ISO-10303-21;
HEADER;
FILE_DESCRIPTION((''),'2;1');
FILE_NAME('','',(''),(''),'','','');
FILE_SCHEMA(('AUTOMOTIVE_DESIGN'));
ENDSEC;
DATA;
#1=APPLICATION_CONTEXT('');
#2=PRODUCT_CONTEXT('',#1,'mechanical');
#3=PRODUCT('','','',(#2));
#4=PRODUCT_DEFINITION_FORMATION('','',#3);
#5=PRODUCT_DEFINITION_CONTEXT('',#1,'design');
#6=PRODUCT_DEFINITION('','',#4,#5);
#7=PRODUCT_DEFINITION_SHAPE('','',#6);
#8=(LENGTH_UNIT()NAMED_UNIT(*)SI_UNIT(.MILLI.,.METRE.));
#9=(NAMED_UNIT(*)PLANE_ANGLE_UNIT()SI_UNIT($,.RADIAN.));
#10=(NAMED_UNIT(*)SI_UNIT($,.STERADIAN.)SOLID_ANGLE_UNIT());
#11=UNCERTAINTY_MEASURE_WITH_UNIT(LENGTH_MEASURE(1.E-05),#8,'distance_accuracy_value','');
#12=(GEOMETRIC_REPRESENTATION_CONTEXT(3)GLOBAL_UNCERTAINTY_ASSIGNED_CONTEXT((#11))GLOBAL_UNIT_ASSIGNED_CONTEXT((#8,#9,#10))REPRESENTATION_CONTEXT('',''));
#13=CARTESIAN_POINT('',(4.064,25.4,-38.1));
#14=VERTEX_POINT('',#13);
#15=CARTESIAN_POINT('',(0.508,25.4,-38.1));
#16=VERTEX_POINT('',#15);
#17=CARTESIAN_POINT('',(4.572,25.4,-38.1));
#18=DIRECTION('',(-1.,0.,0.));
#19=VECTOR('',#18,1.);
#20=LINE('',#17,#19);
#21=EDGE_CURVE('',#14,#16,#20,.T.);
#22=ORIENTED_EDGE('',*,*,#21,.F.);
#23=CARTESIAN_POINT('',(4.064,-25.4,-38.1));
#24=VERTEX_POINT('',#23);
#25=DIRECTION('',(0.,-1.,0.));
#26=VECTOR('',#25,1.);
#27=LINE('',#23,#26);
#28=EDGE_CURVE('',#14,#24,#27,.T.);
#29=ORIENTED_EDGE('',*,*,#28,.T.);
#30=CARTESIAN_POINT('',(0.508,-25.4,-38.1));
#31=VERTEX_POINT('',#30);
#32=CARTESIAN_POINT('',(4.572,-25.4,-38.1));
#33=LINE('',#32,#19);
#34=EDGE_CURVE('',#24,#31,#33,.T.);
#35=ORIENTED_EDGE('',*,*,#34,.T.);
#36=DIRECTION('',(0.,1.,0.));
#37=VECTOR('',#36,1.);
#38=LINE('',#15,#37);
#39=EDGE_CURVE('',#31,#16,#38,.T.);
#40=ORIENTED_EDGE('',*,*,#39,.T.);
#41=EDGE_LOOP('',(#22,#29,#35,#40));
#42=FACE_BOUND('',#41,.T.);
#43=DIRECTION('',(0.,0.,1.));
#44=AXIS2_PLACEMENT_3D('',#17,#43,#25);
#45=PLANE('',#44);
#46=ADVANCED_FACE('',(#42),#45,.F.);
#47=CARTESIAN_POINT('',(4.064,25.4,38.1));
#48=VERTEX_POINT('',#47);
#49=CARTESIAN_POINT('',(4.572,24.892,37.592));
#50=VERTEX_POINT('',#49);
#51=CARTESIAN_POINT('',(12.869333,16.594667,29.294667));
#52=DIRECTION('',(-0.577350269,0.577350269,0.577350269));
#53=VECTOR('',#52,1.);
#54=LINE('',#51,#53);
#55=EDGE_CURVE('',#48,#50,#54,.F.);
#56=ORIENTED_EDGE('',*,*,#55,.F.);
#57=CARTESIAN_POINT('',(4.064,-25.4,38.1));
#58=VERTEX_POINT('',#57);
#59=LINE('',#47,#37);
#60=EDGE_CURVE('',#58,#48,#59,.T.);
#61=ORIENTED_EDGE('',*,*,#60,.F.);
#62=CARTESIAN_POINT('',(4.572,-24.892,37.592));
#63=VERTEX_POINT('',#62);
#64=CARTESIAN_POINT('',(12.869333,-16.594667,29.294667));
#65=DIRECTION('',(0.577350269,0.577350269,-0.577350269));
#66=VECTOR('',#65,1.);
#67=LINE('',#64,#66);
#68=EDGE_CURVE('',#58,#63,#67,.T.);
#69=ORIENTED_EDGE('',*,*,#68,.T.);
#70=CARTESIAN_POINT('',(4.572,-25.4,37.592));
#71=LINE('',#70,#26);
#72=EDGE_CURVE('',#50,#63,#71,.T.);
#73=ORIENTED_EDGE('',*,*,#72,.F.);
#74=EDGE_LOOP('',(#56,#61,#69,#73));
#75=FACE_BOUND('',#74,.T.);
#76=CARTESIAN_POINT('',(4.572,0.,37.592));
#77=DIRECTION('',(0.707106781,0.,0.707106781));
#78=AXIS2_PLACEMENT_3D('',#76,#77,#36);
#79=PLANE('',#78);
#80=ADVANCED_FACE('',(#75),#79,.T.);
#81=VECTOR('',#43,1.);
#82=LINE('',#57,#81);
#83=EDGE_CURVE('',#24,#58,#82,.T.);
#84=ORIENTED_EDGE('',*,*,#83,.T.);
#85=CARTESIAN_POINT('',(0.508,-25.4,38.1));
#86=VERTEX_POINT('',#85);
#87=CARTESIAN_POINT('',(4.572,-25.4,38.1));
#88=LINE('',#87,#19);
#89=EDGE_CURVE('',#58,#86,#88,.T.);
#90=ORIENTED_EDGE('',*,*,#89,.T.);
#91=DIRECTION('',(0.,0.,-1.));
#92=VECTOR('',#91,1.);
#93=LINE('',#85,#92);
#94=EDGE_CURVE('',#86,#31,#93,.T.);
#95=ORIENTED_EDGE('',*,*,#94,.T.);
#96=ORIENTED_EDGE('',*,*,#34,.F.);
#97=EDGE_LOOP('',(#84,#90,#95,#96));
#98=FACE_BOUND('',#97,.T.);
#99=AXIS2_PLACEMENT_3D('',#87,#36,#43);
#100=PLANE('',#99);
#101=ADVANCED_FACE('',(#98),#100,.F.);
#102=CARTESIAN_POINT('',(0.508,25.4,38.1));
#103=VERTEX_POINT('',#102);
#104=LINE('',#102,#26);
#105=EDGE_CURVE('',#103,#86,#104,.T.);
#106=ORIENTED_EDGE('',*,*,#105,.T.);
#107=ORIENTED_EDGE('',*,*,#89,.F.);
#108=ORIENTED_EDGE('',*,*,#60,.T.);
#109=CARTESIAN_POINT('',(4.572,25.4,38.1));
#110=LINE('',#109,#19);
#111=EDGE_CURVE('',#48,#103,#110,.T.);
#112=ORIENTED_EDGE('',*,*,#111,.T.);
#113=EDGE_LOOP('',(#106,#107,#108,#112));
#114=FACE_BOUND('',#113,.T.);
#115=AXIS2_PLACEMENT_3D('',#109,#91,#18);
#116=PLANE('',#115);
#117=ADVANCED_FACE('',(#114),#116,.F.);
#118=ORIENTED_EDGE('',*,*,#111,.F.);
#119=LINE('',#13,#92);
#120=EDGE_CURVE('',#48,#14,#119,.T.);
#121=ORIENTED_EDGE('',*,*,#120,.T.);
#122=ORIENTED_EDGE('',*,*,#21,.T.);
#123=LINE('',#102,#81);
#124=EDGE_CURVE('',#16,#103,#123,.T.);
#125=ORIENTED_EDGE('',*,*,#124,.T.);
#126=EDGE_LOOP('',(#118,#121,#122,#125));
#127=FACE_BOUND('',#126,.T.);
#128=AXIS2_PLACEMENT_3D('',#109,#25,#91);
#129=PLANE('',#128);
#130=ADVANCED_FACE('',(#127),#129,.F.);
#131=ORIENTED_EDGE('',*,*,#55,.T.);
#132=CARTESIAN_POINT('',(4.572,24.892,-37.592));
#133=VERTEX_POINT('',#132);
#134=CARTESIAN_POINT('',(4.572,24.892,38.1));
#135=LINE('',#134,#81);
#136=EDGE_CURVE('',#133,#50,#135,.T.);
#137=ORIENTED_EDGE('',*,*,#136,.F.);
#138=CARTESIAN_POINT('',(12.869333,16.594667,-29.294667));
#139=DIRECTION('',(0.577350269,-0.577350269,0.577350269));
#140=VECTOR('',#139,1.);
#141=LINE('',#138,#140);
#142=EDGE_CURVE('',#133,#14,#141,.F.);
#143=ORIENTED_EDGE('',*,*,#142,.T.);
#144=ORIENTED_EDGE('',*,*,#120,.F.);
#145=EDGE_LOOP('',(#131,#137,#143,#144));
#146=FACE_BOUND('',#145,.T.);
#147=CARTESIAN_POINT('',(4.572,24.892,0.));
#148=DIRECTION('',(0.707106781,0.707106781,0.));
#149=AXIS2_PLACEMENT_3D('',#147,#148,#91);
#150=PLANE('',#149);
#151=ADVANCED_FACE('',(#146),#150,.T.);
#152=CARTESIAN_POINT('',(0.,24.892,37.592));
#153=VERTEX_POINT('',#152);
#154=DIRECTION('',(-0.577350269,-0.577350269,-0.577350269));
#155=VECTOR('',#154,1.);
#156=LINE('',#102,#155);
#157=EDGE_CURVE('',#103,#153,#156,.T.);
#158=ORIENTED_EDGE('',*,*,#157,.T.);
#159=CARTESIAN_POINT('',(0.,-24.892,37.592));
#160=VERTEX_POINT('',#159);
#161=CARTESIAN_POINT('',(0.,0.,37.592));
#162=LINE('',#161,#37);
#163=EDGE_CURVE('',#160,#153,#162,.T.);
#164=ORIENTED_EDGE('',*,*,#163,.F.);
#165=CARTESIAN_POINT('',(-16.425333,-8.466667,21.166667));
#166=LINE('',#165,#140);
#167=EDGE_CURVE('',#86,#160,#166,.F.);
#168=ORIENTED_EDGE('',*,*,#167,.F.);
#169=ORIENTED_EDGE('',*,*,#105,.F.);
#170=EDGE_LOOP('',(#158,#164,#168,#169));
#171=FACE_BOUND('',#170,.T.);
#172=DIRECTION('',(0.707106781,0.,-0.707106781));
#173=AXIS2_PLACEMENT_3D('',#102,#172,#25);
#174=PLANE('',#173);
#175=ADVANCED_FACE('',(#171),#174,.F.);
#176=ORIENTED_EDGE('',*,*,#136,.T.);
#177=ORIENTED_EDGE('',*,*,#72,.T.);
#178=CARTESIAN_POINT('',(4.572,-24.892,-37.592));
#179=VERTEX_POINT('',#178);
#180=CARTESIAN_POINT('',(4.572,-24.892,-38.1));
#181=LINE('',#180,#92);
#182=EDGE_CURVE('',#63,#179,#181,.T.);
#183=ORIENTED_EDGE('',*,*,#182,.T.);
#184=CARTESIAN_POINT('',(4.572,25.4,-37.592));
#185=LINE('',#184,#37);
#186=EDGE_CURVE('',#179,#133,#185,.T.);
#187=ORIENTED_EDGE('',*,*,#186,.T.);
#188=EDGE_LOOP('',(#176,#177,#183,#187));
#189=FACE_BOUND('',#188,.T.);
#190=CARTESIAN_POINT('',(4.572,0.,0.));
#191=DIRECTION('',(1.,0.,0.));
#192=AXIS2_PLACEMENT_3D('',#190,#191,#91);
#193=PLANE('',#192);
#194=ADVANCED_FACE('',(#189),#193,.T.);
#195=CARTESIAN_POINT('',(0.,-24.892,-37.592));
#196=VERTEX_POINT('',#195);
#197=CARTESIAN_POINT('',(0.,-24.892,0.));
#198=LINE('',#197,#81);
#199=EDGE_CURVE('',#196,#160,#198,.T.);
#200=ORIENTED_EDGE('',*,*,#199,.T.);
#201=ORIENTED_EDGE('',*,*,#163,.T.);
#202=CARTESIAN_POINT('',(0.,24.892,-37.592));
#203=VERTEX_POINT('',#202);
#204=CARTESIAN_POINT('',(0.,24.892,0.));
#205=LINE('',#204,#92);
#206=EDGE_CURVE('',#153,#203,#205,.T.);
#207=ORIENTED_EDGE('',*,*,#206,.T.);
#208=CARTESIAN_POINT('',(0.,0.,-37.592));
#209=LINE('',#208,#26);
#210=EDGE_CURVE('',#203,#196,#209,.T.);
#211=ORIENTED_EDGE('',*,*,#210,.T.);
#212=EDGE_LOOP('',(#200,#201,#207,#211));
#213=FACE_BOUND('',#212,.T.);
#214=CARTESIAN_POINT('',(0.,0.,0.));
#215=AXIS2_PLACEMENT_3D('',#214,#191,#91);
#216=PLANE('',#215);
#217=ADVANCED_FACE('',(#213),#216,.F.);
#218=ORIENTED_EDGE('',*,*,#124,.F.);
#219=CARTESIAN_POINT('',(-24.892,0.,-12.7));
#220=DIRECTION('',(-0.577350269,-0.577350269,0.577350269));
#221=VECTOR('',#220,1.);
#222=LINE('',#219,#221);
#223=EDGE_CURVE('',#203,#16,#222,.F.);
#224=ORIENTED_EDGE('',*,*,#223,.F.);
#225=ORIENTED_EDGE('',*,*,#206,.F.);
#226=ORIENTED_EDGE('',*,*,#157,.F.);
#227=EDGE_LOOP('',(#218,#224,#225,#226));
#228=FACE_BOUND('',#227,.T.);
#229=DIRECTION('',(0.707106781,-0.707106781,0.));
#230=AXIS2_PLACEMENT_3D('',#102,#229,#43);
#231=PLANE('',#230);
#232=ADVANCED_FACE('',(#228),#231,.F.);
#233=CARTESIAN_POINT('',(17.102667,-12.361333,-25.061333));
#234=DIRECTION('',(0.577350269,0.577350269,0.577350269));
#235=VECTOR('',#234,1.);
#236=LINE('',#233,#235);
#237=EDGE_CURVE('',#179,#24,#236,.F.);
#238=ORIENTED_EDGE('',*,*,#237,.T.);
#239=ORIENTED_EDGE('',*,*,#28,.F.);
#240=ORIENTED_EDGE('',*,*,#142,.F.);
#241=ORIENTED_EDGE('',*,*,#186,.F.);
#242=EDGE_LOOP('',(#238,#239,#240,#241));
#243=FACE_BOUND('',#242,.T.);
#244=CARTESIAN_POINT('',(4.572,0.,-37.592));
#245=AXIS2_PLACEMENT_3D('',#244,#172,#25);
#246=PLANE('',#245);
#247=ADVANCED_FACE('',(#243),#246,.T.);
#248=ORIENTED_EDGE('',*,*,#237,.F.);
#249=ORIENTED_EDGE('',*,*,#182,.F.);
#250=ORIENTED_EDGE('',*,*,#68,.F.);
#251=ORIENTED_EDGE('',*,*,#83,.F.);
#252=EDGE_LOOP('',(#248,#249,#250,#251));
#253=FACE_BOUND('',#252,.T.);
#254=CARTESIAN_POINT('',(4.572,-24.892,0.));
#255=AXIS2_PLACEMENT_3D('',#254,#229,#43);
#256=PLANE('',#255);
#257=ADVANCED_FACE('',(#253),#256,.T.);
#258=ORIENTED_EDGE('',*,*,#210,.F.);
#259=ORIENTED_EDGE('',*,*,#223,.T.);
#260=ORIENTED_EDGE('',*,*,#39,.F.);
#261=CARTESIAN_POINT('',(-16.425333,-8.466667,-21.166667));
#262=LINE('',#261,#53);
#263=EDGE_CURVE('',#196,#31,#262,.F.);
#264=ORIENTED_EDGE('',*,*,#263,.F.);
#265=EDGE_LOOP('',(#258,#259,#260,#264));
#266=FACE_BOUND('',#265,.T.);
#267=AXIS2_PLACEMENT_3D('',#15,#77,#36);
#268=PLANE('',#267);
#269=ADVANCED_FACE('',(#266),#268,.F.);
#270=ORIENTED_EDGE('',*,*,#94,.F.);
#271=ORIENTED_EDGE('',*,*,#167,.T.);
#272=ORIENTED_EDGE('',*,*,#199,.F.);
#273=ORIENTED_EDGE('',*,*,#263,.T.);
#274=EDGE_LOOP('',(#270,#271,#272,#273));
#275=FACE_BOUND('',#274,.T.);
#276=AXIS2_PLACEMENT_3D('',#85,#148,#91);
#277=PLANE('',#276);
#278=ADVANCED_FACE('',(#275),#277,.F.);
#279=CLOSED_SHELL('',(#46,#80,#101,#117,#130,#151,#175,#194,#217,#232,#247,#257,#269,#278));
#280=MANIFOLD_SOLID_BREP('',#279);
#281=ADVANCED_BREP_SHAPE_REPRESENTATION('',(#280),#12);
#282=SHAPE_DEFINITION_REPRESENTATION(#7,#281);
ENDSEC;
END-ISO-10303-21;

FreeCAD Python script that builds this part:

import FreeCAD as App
import Part
import Sketcher
Q = App.Units.Quantity


def edges_at(feature, points):
    """Names of the edges that pass closest to the given points."""
    edges = feature.Shape.Edges
    near = lambda p: min(range(len(edges)), key=lambda i: edges[i].distToShape(Part.Vertex(*p))[0])
    return sorted({f"Edge{near(p) + 1}" for p in points})


def add_polygon(sketch, points):
    """Adds a closed chain of lines whose ends are joined by coincident constraints."""
    first, n = sketch.GeometryCount, len(points)
    for a, b in zip(points, points[1:] + points[:1]):
        sketch.addGeometry(Part.LineSegment(App.Vector(*a, 0), App.Vector(*b, 0)), False)
    for i in range(n):
        sketch.addConstraint(Sketcher.Constraint("Coincident", first + i, 2, first + (i + 1) % n, 1))

doc = App.newDocument("Part")
body = doc.addObject("PartDesign::Body", "Body")

# Sketch on YZ plane
sketch1 = doc.addObject("Sketcher::SketchObject", "Sketch")
body.addObject(sketch1)
sketch1.AttachmentSupport = (doc.YZ_Plane, [""])
sketch1.MapMode = "FlatFace"
add_polygon(sketch1, [(25.4, 38.1), (-25.4, 38.1), (-25.4, -38.1), (25.4, -38.1)])  # lines 0-3
sketch1.addConstraint([
    Sketcher.Constraint("Horizontal", 0),
    Sketcher.Constraint("Vertical", 1),
    Sketcher.Constraint("Horizontal", 2),
    Sketcher.Constraint("Vertical", 3),
    Sketcher.Constraint("Symmetric", 0, 2, 2, 2, -1, 1),
    Sketcher.Constraint("DistanceX", 0, 2, 0, 1, Q("2 in")),
    Sketcher.Constraint("DistanceY", 1, 2, 1, 1, Q("3 in")),
])
pad1 = doc.addObject("PartDesign::Pad", "Pad")
body.addObject(pad1)
pad1.Profile = sketch1
pad1.Length = Q("0.18 in")
doc.recompute()

chamfer = doc.addObject("PartDesign::Chamfer", "Chamfer")
body.addObject(chamfer)
chamfer.Base = (pad1, edges_at(pad1, [
    (4.572, 0, -38.1),
    (4.572, 25.4, 0),
    (4.572, 0, 38.1),
    (0, 25.4, 0),
    (0, 0, -38.1),
    (0, -25.4, 0),
    (0, 0, 38.1),
    (4.572, -25.4, 0),
]))
chamfer.Size = Q("0.02 in")

doc.recompute()
